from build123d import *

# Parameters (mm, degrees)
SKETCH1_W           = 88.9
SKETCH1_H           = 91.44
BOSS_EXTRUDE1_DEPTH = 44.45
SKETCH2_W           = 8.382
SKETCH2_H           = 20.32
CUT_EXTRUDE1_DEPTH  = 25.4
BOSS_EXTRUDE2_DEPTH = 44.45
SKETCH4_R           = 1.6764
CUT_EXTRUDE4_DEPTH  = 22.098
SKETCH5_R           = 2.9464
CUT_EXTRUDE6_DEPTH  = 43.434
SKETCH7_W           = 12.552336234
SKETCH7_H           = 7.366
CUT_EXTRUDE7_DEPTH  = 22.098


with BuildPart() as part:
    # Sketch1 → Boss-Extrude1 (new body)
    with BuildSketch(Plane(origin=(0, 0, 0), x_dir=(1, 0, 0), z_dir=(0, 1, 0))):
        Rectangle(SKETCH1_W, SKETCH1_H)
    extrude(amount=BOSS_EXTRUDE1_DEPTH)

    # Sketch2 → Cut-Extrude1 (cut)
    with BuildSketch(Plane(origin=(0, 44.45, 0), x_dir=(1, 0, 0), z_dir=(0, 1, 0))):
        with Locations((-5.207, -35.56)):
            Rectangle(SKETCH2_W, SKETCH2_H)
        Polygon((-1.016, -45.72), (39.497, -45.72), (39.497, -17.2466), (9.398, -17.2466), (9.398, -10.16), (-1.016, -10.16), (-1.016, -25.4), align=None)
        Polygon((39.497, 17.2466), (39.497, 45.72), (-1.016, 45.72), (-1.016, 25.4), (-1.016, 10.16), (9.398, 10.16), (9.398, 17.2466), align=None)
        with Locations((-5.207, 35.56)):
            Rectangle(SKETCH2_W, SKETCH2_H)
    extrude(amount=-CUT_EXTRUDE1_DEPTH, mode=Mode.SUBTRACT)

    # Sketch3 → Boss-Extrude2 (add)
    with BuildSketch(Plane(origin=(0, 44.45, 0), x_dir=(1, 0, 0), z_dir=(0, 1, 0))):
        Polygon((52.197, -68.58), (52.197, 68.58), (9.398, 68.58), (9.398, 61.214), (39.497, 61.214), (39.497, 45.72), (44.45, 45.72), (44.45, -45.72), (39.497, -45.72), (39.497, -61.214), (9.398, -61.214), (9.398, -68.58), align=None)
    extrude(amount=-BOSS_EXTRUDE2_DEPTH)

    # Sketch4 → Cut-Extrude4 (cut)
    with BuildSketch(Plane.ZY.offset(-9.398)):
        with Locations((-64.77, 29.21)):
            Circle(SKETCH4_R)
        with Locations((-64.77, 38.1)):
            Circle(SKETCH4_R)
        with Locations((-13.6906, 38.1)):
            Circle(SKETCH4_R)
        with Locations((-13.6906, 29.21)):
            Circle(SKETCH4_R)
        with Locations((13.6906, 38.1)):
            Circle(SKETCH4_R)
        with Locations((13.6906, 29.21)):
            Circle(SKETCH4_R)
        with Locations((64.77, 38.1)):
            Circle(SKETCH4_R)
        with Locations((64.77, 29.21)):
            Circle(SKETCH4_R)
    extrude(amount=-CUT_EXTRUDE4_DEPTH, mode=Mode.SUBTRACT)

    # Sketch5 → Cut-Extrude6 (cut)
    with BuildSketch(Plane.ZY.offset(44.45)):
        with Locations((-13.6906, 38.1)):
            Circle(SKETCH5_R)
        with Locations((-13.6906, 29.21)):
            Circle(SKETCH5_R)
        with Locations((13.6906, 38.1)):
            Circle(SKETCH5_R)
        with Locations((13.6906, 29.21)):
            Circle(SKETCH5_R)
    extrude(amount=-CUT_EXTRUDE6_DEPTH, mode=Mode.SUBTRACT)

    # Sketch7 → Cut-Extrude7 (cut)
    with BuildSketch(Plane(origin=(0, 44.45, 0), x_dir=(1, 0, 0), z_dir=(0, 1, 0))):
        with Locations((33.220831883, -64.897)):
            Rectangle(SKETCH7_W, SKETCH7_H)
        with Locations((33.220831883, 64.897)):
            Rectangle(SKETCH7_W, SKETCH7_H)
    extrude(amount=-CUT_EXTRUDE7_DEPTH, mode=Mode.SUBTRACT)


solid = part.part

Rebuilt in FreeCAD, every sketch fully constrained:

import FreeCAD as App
import Part
import Sketcher
from FreeCAD import Vector
Q = App.Units.Quantity

doc = App.newDocument("Part")
body = doc.addObject("PartDesign::Body", "Body")

# Sketch on XZ plane
sketch1 = doc.addObject("Sketcher::SketchObject", "Sketch")
body.addObject(sketch1)
sketch1.AttachmentSupport = (doc.XZ_Plane, [""])
sketch1.MapMode = "FlatFace"
sketch1.addGeometry([
    Part.LineSegment(Vector(-44, -46, 0), Vector(-44, 46, 0)),
    Part.LineSegment(Vector(-44, 46, 0), Vector(44, 46, 0)),
    Part.LineSegment(Vector(44, 46, 0), Vector(44, -46, 0)),
    Part.LineSegment(Vector(44, -46, 0), Vector(-44, -46, 0)),
], False)
sketch1.addConstraint([
    Sketcher.Constraint("Coincident", 0, 2, 1, 1),
    Sketcher.Constraint("Coincident", 1, 2, 2, 1),
    Sketcher.Constraint("Coincident", 2, 2, 3, 1),
    Sketcher.Constraint("Coincident", 3, 2, 0, 1),
    Sketcher.Constraint("Vertical", 0),
    Sketcher.Constraint("Horizontal", 1),
    Sketcher.Constraint("Vertical", 2),
    Sketcher.Constraint("Horizontal", 3),
    Sketcher.Constraint("Symmetric", 0, 2, 2, 2, -1, 1),
    Sketcher.Constraint("DistanceX", 1, 1, 1, 2, Q("3.5 in")),
    Sketcher.Constraint("DistanceY", 0, 1, 0, 2, Q("3.6 in")),
])
pad1 = doc.addObject("PartDesign::Pad", "Pad")
body.addObject(pad1)
pad1.Profile = sketch1
pad1.Length = Q("1.75 in")
pad1.Reversed = True

# Sketch on XZ plane
sketch2 = doc.addObject("Sketcher::SketchObject", "Sketch001")
body.addObject(sketch2)
sketch2.AttachmentSupport = (doc.XZ_Plane, [""])
sketch2.MapMode = "FlatFace"
sketch2.AttachmentOffset = App.Placement(Vector(0, 0, -1.75 * 25.4), App.Rotation())
sketch2.addGeometry([
    Part.LineSegment(Vector(-9, 25, 0), Vector(-9, 46, 0)),  # 0
    Part.LineSegment(Vector(-9, 46, 0), Vector(39, 46, 0)),  # 1
    Part.LineSegment(Vector(39, 46, 0), Vector(39, 17, 0)),  # 2
    Part.LineSegment(Vector(39, 17, 0), Vector(9, 17, 0)),  # 3
    Part.LineSegment(Vector(9, 17, 0), Vector(9, 10, 0)),  # 4
    Part.LineSegment(Vector(9, 10, 0), Vector(-1, 10, 0)),  # 5
    Part.LineSegment(Vector(-1, 10, 0), Vector(-1, 25, 0)),  # 6
    Part.LineSegment(Vector(-1, 25, 0), Vector(-9, 25, 0)),  # 7
    Part.LineSegment(Vector(39, -17, 0), Vector(39, -46, 0)),  # 8
    Part.LineSegment(Vector(39, -46, 0), Vector(-9, -46, 0)),  # 9
    Part.LineSegment(Vector(-9, -46, 0), Vector(-9, -25, 0)),  # 10
    Part.LineSegment(Vector(-9, -25, 0), Vector(-1, -25, 0)),  # 11
    Part.LineSegment(Vector(-1, -25, 0), Vector(-1, -10, 0)),  # 12
    Part.LineSegment(Vector(-1, -10, 0), Vector(9, -10, 0)),  # 13
    Part.LineSegment(Vector(9, -10, 0), Vector(9, -17, 0)),  # 14
    Part.LineSegment(Vector(9, -17, 0), Vector(39, -17, 0)),  # 15
], False)
sketch2.addConstraint([
    Sketcher.Constraint("Coincident", 0, 2, 1, 1),
    Sketcher.Constraint("Coincident", 1, 2, 2, 1),
    Sketcher.Constraint("Coincident", 2, 2, 3, 1),
    Sketcher.Constraint("Coincident", 3, 2, 4, 1),
    Sketcher.Constraint("Coincident", 4, 2, 5, 1),
    Sketcher.Constraint("Coincident", 5, 2, 6, 1),
    Sketcher.Constraint("Coincident", 6, 2, 7, 1),
    Sketcher.Constraint("Coincident", 7, 2, 0, 1),
    Sketcher.Constraint("Coincident", 8, 2, 9, 1),
    Sketcher.Constraint("Coincident", 9, 2, 10, 1),
    Sketcher.Constraint("Coincident", 10, 2, 11, 1),
    Sketcher.Constraint("Coincident", 11, 2, 12, 1),
    Sketcher.Constraint("Coincident", 12, 2, 13, 1),
    Sketcher.Constraint("Coincident", 13, 2, 14, 1),
    Sketcher.Constraint("Coincident", 14, 2, 15, 1),
    Sketcher.Constraint("Coincident", 15, 2, 8, 1),
    Sketcher.Constraint("Vertical", 0),
    Sketcher.Constraint("Horizontal", 1),
    Sketcher.Constraint("Vertical", 2),
    Sketcher.Constraint("Horizontal", 3),
    Sketcher.Constraint("Vertical", 4),
    Sketcher.Constraint("Horizontal", 5),
    Sketcher.Constraint("Vertical", 6),
    Sketcher.Constraint("Horizontal", 7),
    Sketcher.Constraint("Vertical", 8),
    Sketcher.Constraint("Horizontal", 9),
    Sketcher.Constraint("Vertical", 10),
    Sketcher.Constraint("Horizontal", 11),
    Sketcher.Constraint("Vertical", 12),
    Sketcher.Constraint("Horizontal", 13),
    Sketcher.Constraint("Vertical", 14),
    Sketcher.Constraint("Horizontal", 15),
    Sketcher.Constraint("Symmetric", 1, 2, 8, 2, -1),
    Sketcher.Constraint("Symmetric", 7, 2, 10, 2, -1),
    Sketcher.Constraint("Symmetric", 5, 2, 12, 2, -1),
    Sketcher.Constraint("Symmetric", 3, 2, 14, 2, -1),
    Sketcher.Constraint("DistanceY", 0, 1, 0, 2, Q("0.8 in")),
    Sketcher.Constraint("DistanceY", 6, 1, 6, 2, Q("0.6 in")),
    Sketcher.Constraint("DistanceY", -1, 1, 6, 2, Q("1 in")),
    Sketcher.Constraint("DistanceX", 5, 2, 5, 1, Q("0.41 in")),
    Sketcher.Constraint("DistanceX", 7, 2, 7, 1, Q("0.33 in")),
    Sketcher.Constraint("DistanceX", 1, 1, 1, 2, Q("1.925 in")),
    Sketcher.Constraint("DistanceY", 2, 2, 2, 1, Q("1.121 in")),
    Sketcher.Constraint("DistanceX", 0, 2, -1, 1, Q("0.37 in")),
])
pocket1 = doc.addObject("PartDesign::Pocket", "Pocket")
body.addObject(pocket1)
pocket1.Profile = sketch2
pocket1.Length = Q("1 in")
pocket1.Reversed = True

# Sketch on XZ plane
sketch3 = doc.addObject("Sketcher::SketchObject", "Sketch002")
body.addObject(sketch3)
sketch3.AttachmentSupport = (doc.XZ_Plane, [""])
sketch3.MapMode = "FlatFace"
sketch3.AttachmentOffset = App.Placement(Vector(0, 0, -1.75 * 25.4), App.Rotation())
sketch3.addGeometry([
    Part.LineSegment(Vector(52.2, 68.6, 0), Vector(52.2, -68.6, 0)),  # 0
    Part.LineSegment(Vector(52.2, -68.6, 0), Vector(9.4, -68.6, 0)),  # 1
    Part.LineSegment(Vector(9.4, -68.6, 0), Vector(9.4, -61.2, 0)),  # 2
    Part.LineSegment(Vector(9.4, -61.2, 0), Vector(39.5, -61.2, 0)),  # 3
    Part.LineSegment(Vector(39.5, -61.2, 0), Vector(39.5, -45.7, 0)),  # 4
    Part.LineSegment(Vector(39.5, -45.7, 0), Vector(44.5, -45.7, 0)),  # 5
    Part.LineSegment(Vector(44.5, -45.7, 0), Vector(44.5, 45.7, 0)),  # 6
    Part.LineSegment(Vector(44.5, 45.7, 0), Vector(39.5, 45.7, 0)),  # 7
    Part.LineSegment(Vector(39.5, 45.7, 0), Vector(39.5, 61.2, 0)),  # 8
    Part.LineSegment(Vector(39.5, 61.2, 0), Vector(9.4, 61.2, 0)),  # 9
    Part.LineSegment(Vector(9.4, 61.2, 0), Vector(9.4, 68.6, 0)),  # 10
    Part.LineSegment(Vector(9.4, 68.6, 0), Vector(52.2, 68.6, 0)),  # 11
], False)
sketch3.addConstraint([
    Sketcher.Constraint("Coincident", 0, 2, 1, 1),
    Sketcher.Constraint("Coincident", 1, 2, 2, 1),
    Sketcher.Constraint("Coincident", 2, 2, 3, 1),
    Sketcher.Constraint("Coincident", 3, 2, 4, 1),
    Sketcher.Constraint("Coincident", 4, 2, 5, 1),
    Sketcher.Constraint("Coincident", 5, 2, 6, 1),
    Sketcher.Constraint("Coincident", 6, 2, 7, 1),
    Sketcher.Constraint("Coincident", 7, 2, 8, 1),
    Sketcher.Constraint("Coincident", 8, 2, 9, 1),
    Sketcher.Constraint("Coincident", 9, 2, 10, 1),
    Sketcher.Constraint("Coincident", 10, 2, 11, 1),
    Sketcher.Constraint("Coincident", 11, 2, 0, 1),
    Sketcher.Constraint("Vertical", 0),
    Sketcher.Constraint("Horizontal", 1),
    Sketcher.Constraint("Vertical", 2),
    Sketcher.Constraint("Horizontal", 3),
    Sketcher.Constraint("Vertical", 4),
    Sketcher.Constraint("Horizontal", 5),
    Sketcher.Constraint("Vertical", 6),
    Sketcher.Constraint("Horizontal", 7),
    Sketcher.Constraint("Vertical", 8),
    Sketcher.Constraint("Horizontal", 9),
    Sketcher.Constraint("Vertical", 10),
    Sketcher.Constraint("Horizontal", 11),
    Sketcher.Constraint("Symmetric", 4, 2, 7, 2, -1),
    Sketcher.Constraint("Symmetric", 2, 2, 9, 2, -1),
    Sketcher.Constraint("Equal", 2, 10),
    Sketcher.Constraint("DistanceY", 0, 2, 0, 1, Q("5.4 in")),
    Sketcher.Constraint("DistanceY", 6, 1, 6, 2, Q("3.6 in")),
    Sketcher.Constraint("DistanceY", 2, 1, 2, 2, Q("0.29 in")),
    Sketcher.Constraint("DistanceX", 3, 2, 0, 2, Q("0.5 in")),
    Sketcher.Constraint("DistanceX", 1, 2, 1, 1, Q("1.685 in")),
    Sketcher.Constraint("DistanceX", 5, 1, 5, 2, Q("0.195 in")),
    Sketcher.Constraint("DistanceX", -1, 1, 1, 2, Q("0.37 in")),
])
pad2 = doc.addObject("PartDesign::Pad", "Pad001")
body.addObject(pad2)
pad2.Profile = sketch3
pad2.Length = Q("1.75 in")

# Sketch on YZ plane
sketch4 = doc.addObject("Sketcher::SketchObject", "Sketch003")
body.addObject(sketch4)
sketch4.AttachmentSupport = (doc.YZ_Plane, [""])
sketch4.MapMode = "FlatFace"
sketch4.AttachmentOffset = App.Placement(Vector(0, 0, 0.37 * 25.4), App.Rotation())
sketch4.addGeometry([
    Part.Circle(Vector(29.2, -64.8, 0), Vector(0, 0, 1), 1.7),  # 0
    Part.Circle(Vector(38.1, -64.8, 0), Vector(0, 0, 1), 1.7),  # 1
    Part.Circle(Vector(38.1, -13.7, 0), Vector(0, 0, 1), 1.7),  # 2
    Part.Circle(Vector(29.2, -13.7, 0), Vector(0, 0, 1), 1.7),  # 3
    Part.Circle(Vector(38.1, 13.7, 0), Vector(0, 0, 1), 1.7),  # 4
    Part.Circle(Vector(29.2, 13.7, 0), Vector(0, 0, 1), 1.7),  # 5
    Part.Circle(Vector(38.1, 64.8, 0), Vector(0, 0, 1), 1.7),  # 6
    Part.Circle(Vector(29.2, 64.8, 0), Vector(0, 0, 1), 1.7),  # 7
], False)
sketch4.addConstraint([
    Sketcher.Constraint("Equal", 0, 1),
    Sketcher.Constraint("Equal", 1, 2),
    Sketcher.Constraint("Equal", 2, 3),
    Sketcher.Constraint("Equal", 3, 4),
    Sketcher.Constraint("Equal", 4, 5),
    Sketcher.Constraint("Equal", 5, 6),
    Sketcher.Constraint("Equal", 6, 7),
    Sketcher.Constraint("Symmetric", 2, 3, 4, 3, -1),
    Sketcher.Constraint("Symmetric", 3, 3, 5, 3, -1),
    Sketcher.Constraint("Symmetric", 1, 3, 6, 3, -1),
    Sketcher.Constraint("Symmetric", 0, 3, 7, 3, -1),
    Sketcher.Constraint("Horizontal", 0, 3, 1, 3),
    Sketcher.Constraint("Horizontal", 2, 3, 3, 3),
    Sketcher.Constraint("Vertical", 1, 3, 2, 3),
    Sketcher.Constraint("Vertical", 0, 3, 3, 3),
    Sketcher.Constraint("Diameter", 0, Q("0.132 in")),
    Sketcher.Constraint("DistanceX", -1, 1, 1, 3, Q("1.5 in")),
    Sketcher.Constraint("DistanceY", 1, 3, 6, 3, Q("5.1 in")),
    Sketcher.Constraint("DistanceX", -1, 1, 0, 3, Q("1.15 in")),
    Sketcher.Constraint("DistanceY", 2, 3, -1, 1, Q("0.539 in")),
])
pocket2 = doc.addObject("PartDesign::Pocket", "Pocket001")
body.addObject(pocket2)
pocket2.Profile = sketch4
pocket2.Length = Q("0.87 in")
pocket2.Reversed = True

# Sketch on YZ plane
sketch5 = doc.addObject("Sketcher::SketchObject", "Sketch004")
body.addObject(sketch5)
sketch5.AttachmentSupport = (doc.YZ_Plane, [""])
sketch5.MapMode = "FlatFace"
sketch5.AttachmentOffset = App.Placement(Vector(0, 0, -1.75 * 25.4), App.Rotation())
sketch5.addGeometry([
    Part.Circle(Vector(38.1, -13.7, 0), Vector(0, 0, 1), 2.9),
    Part.Circle(Vector(29.2, -13.7, 0), Vector(0, 0, 1), 2.9),
    Part.Circle(Vector(38.1, 13.7, 0), Vector(0, 0, 1), 2.9),
    Part.Circle(Vector(29.2, 13.7, 0), Vector(0, 0, 1), 2.9),
], False)
sketch5.addConstraint([
    Sketcher.Constraint("Equal", 0, 1),
    Sketcher.Constraint("Equal", 1, 2),
    Sketcher.Constraint("Equal", 2, 3),
    Sketcher.Constraint("Symmetric", 0, 3, 2, 3, -1),
    Sketcher.Constraint("Symmetric", 1, 3, 3, 3, -1),
    Sketcher.Constraint("Horizontal", 0, 3, 1, 3),
    Sketcher.Constraint("Diameter", 0, Q("0.232 in")),
    Sketcher.Constraint("DistanceX", -1, 1, 0, 3, Q("1.5 in")),
    Sketcher.Constraint("DistanceX", -1, 1, 1, 3, Q("1.15 in")),
    Sketcher.Constraint("DistanceY", 0, 3, -1, 1, Q("0.539 in")),
])
pocket3 = doc.addObject("PartDesign::Pocket", "Pocket002")
body.addObject(pocket3)
pocket3.Profile = sketch5
pocket3.Length = Q("1.71 in")
pocket3.Reversed = True

# Sketch on XZ plane
sketch6 = doc.addObject("Sketcher::SketchObject", "Sketch005")
body.addObject(sketch6)
sketch6.AttachmentSupport = (doc.XZ_Plane, [""])
sketch6.MapMode = "FlatFace"
sketch6.AttachmentOffset = App.Placement(Vector(0, 0, -1.75 * 25.4), App.Rotation())
sketch6.addGeometry([
    Part.LineSegment(Vector(27, 61, 0), Vector(27, 69, 0)),  # 0
    Part.LineSegment(Vector(27, 69, 0), Vector(39, 69, 0)),  # 1
    Part.LineSegment(Vector(39, 69, 0), Vector(39, 61, 0)),  # 2
    Part.LineSegment(Vector(39, 61, 0), Vector(27, 61, 0)),  # 3
    Part.LineSegment(Vector(27, -69, 0), Vector(27, -61, 0)),  # 4
    Part.LineSegment(Vector(27, -61, 0), Vector(39, -61, 0)),  # 5
    Part.LineSegment(Vector(39, -61, 0), Vector(39, -69, 0)),  # 6
    Part.LineSegment(Vector(39, -69, 0), Vector(27, -69, 0)),  # 7
], False)
sketch6.addConstraint([
    Sketcher.Constraint("Coincident", 0, 2, 1, 1),
    Sketcher.Constraint("Coincident", 1, 2, 2, 1),
    Sketcher.Constraint("Coincident", 2, 2, 3, 1),
    Sketcher.Constraint("Coincident", 3, 2, 0, 1),
    Sketcher.Constraint("Coincident", 4, 2, 5, 1),
    Sketcher.Constraint("Coincident", 5, 2, 6, 1),
    Sketcher.Constraint("Coincident", 6, 2, 7, 1),
    Sketcher.Constraint("Coincident", 7, 2, 4, 1),
    Sketcher.Constraint("Vertical", 0),
    Sketcher.Constraint("Horizontal", 1),
    Sketcher.Constraint("Vertical", 2),
    Sketcher.Constraint("Horizontal", 3),
    Sketcher.Constraint("Vertical", 4),
    Sketcher.Constraint("Horizontal", 5),
    Sketcher.Constraint("Vertical", 6),
    Sketcher.Constraint("Horizontal", 7),
    Sketcher.Constraint("Symmetric", 3, 2, 4, 2, -1),
    Sketcher.Constraint("Symmetric", 1, 2, 6, 2, -1),
    Sketcher.Constraint("DistanceY", 0, 1, 0, 2, Q("0.29 in")),
    Sketcher.Constraint("DistanceY", -1, 1, 0, 2, Q("2.7 in")),
    Sketcher.Constraint("DistanceX", -1, 1, 1, 2, Q("1.555 in")),
    Sketcher.Constraint("DistanceX", 1, 1, 1, 2, Q("12.552336 mm")),
])
pocket4 = doc.addObject("PartDesign::Pocket", "Pocket003")
body.addObject(pocket4)
pocket4.Profile = sketch6
pocket4.Length = Q("0.87 in")
pocket4.Reversed = True

doc.recompute()
